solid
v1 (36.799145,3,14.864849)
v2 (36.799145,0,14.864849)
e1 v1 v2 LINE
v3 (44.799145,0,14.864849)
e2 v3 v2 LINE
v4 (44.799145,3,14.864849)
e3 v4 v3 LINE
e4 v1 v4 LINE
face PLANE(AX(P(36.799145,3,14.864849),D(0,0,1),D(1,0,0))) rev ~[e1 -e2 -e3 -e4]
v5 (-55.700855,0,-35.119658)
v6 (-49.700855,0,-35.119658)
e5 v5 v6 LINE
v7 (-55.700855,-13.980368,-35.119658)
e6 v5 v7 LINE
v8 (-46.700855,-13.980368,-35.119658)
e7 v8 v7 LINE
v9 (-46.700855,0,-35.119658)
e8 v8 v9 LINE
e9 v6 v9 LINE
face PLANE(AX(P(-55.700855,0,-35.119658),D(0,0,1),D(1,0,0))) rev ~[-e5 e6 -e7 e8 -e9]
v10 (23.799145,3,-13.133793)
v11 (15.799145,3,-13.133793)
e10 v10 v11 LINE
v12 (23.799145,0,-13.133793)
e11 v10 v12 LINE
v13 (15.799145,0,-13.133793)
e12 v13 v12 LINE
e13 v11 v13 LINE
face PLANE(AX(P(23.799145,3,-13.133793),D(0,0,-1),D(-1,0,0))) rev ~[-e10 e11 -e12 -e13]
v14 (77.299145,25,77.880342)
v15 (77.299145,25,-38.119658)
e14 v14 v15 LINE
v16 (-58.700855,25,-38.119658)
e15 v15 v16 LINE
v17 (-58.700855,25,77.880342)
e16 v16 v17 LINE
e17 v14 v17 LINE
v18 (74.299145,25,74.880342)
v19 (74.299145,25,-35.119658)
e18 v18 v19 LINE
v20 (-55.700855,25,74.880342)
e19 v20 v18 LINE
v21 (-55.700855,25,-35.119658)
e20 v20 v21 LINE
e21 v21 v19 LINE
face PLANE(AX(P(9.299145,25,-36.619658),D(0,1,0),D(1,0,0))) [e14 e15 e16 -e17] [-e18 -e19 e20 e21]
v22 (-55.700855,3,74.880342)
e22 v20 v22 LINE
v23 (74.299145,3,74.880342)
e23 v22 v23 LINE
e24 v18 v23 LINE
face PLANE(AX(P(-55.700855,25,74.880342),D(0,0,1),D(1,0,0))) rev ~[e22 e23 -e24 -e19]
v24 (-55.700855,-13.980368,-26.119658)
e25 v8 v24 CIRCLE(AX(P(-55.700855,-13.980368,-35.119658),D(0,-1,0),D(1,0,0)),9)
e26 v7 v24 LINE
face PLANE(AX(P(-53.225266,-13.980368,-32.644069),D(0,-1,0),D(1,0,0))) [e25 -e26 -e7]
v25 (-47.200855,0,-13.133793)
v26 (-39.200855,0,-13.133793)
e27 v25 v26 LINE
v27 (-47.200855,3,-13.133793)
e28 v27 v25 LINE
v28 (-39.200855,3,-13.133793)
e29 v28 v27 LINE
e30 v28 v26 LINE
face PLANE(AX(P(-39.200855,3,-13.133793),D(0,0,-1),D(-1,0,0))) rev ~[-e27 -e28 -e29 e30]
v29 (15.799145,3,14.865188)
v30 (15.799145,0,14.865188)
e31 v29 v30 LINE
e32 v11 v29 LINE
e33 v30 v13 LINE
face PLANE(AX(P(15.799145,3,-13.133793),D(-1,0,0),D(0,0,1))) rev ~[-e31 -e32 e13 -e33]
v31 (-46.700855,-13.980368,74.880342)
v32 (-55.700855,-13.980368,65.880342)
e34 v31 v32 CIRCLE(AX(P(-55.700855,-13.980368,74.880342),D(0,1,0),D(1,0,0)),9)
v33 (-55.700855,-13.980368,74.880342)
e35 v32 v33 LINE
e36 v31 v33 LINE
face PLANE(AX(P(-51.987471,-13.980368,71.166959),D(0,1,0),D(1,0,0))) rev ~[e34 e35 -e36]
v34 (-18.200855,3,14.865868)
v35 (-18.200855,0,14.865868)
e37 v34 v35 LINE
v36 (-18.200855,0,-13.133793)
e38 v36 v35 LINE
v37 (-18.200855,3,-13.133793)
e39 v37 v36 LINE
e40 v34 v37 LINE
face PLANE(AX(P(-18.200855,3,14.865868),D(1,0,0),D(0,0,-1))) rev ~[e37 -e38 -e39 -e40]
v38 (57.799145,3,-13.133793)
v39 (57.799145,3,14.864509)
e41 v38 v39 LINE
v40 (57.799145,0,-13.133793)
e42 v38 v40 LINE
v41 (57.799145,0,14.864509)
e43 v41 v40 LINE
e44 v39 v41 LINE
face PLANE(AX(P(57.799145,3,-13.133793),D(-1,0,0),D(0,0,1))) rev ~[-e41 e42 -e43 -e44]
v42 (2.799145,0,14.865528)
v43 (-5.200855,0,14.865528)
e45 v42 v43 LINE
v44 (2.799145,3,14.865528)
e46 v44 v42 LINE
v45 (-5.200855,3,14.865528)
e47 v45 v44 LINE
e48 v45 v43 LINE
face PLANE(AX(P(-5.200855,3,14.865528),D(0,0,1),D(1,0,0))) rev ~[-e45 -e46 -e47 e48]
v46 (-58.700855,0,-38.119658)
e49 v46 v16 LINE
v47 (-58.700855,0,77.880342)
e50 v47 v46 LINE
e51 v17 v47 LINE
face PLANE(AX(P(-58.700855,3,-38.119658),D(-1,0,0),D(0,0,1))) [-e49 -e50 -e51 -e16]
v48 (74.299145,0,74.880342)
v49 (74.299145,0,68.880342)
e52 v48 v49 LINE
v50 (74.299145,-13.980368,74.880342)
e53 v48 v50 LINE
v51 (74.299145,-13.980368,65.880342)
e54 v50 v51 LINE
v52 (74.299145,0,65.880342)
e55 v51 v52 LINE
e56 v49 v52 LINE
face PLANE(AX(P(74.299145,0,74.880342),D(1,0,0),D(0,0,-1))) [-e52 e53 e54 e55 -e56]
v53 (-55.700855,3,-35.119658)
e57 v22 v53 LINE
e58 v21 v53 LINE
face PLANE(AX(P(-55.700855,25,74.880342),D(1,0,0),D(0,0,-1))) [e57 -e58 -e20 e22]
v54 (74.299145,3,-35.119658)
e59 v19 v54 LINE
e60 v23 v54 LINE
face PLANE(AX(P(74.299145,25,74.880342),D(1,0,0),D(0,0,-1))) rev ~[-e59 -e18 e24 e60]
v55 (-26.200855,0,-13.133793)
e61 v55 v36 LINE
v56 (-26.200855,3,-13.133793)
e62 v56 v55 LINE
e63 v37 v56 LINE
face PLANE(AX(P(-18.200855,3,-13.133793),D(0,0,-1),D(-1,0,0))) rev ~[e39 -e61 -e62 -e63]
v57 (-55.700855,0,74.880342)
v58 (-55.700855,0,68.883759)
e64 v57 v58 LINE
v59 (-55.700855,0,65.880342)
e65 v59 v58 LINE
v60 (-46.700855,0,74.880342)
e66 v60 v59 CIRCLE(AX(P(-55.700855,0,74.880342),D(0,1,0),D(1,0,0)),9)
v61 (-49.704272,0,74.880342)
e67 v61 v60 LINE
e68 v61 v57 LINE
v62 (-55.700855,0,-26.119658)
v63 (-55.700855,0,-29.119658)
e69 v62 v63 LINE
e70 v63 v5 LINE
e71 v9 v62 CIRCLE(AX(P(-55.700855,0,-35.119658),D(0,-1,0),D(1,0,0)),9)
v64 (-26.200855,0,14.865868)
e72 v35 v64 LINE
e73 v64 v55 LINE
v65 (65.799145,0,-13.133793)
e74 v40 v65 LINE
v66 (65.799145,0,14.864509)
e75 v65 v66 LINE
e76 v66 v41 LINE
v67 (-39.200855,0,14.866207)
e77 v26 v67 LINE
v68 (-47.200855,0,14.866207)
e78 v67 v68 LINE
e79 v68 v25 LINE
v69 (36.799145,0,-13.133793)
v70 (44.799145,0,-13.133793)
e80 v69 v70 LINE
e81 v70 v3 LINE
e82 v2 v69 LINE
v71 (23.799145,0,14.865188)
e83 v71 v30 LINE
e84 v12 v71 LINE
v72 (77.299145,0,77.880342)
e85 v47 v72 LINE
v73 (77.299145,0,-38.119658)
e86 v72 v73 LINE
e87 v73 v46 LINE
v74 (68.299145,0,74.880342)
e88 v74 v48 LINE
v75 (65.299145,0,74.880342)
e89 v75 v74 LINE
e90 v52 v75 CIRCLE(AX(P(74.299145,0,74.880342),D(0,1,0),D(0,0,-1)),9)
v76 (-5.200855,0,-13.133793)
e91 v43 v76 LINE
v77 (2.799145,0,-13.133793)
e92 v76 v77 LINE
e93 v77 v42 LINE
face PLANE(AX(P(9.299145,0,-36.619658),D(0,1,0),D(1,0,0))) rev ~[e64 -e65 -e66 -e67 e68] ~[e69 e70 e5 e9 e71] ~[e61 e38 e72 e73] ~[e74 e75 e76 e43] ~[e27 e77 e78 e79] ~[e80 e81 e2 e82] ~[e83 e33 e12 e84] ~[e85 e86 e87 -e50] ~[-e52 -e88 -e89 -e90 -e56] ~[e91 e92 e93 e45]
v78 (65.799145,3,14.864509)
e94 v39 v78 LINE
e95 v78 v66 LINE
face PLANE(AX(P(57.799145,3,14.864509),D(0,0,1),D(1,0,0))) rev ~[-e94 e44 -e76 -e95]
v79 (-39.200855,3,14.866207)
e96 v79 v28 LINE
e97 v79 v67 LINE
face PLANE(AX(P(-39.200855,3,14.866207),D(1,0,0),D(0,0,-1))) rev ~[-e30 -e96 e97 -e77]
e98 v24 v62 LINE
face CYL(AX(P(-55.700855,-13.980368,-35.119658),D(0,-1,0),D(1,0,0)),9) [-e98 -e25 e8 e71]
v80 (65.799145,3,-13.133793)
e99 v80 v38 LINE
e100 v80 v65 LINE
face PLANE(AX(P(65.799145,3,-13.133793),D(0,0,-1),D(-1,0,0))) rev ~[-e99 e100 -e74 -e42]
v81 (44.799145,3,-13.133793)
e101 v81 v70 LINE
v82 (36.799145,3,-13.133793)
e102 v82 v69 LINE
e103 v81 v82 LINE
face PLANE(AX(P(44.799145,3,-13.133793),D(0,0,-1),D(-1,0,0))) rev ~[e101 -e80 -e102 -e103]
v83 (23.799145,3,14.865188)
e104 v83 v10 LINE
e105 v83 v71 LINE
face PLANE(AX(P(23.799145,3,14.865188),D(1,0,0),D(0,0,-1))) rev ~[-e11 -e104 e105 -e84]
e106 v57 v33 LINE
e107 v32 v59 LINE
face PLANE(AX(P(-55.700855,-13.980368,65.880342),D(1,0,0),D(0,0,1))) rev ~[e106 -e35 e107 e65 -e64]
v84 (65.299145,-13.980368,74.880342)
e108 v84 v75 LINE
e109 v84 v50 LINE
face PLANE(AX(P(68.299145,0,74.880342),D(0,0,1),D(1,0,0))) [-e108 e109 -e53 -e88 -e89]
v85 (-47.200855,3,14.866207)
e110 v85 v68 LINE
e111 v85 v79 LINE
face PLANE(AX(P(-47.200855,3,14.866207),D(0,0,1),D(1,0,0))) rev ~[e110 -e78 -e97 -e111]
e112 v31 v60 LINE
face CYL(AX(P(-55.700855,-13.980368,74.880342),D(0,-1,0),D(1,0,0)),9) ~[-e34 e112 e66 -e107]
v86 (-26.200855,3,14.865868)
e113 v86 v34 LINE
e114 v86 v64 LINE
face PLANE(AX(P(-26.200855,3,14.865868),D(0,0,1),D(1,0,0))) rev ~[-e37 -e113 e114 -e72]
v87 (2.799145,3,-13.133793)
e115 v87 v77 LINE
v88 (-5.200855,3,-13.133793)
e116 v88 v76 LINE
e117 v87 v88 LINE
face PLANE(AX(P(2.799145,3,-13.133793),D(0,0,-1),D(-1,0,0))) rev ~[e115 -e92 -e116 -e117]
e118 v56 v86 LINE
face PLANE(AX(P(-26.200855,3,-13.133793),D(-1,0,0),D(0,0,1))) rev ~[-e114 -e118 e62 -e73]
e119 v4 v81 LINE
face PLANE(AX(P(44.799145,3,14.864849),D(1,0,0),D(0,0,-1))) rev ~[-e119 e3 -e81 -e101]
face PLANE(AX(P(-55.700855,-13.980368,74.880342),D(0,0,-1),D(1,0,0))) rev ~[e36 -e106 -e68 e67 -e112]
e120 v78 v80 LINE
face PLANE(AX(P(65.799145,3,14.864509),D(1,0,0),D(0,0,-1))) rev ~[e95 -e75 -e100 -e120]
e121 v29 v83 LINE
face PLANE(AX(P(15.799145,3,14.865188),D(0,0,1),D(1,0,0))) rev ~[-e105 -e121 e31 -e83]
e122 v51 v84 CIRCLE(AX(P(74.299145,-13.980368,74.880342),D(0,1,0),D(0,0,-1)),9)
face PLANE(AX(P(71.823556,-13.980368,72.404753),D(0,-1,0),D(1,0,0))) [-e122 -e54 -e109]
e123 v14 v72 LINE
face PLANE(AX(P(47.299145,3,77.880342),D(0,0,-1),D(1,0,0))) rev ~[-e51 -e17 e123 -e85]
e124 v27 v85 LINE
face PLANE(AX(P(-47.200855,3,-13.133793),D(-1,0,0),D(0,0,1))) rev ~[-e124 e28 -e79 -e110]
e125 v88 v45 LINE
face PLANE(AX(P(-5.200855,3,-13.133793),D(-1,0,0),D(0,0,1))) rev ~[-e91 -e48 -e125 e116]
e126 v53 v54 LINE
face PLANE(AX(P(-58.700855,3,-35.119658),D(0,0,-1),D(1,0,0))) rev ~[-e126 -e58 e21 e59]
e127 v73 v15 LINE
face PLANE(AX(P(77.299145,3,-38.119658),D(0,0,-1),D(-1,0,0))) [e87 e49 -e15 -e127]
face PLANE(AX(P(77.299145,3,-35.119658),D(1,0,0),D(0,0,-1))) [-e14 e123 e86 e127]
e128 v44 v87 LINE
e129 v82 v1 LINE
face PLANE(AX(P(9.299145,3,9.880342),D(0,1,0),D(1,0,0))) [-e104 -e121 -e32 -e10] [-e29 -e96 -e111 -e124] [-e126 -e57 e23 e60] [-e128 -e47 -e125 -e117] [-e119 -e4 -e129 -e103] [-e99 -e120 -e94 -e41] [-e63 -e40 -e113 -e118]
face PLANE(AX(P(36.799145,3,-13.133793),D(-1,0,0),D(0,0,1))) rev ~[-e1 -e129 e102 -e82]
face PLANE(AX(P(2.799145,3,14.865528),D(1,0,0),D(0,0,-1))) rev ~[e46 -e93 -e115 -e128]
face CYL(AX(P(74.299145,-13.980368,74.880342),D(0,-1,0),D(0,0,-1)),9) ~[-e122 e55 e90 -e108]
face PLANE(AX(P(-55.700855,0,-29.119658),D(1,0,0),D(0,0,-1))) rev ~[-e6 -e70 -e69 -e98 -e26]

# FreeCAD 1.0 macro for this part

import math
import FreeCAD as App
import Part
import Sketcher
from FreeCAD import Vector
Q = App.Units.Quantity


def add_polygon(sketch, points):
    """Adds a closed chain of lines whose ends are joined by coincident constraints."""
    first, n = sketch.GeometryCount, len(points)
    for a, b in zip(points, points[1:] + points[:1]):
        sketch.addGeometry(Part.LineSegment(App.Vector(*a, 0), App.Vector(*b, 0)), False)
    for i in range(n):
        sketch.addConstraint(Sketcher.Constraint("Coincident", first + i, 2, first + (i + 1) % n, 1))

doc = App.newDocument("Part")
body = doc.addObject("PartDesign::Body", "Body")

sketch1 = body.newObject("Sketcher::SketchObject", "Sketch")
sketch1.AttachmentSupport = (doc.getObject("XZ_Plane"), [""])
sketch1.MapMode = "FlatFace"
add_polygon(sketch1, [(-58.700855, -58.119658), (-58.700855, 77.880342), (77.299145, 77.880342), (77.299145, -58.119658)])
sketch1.addConstraint(Sketcher.Constraint("Vertical", 0))
sketch1.addConstraint(Sketcher.Constraint("Horizontal", 1))
sketch1.addConstraint(Sketcher.Constraint("Vertical", 2))
sketch1.addConstraint(Sketcher.Constraint("Horizontal", 3))
sketch1.addConstraint(Sketcher.Constraint("Equal", 3, 0))
sketch1.addConstraint(Sketcher.Constraint("DistanceX", 1, 1, 1, 2, 136.0))
sketch1.addConstraint(Sketcher.Constraint("DistanceY", -1, 1, 0, 2, 77.880342))
sketch1.addConstraint(Sketcher.Constraint("DistanceX", 0, 2, -1, 1, 58.700855))
pad1 = body.newObject("PartDesign::Pad", "Pad")
pad1.Profile = sketch1
pad1.Length = 25
pad1.Reversed = True

sketch2 = body.newObject("Sketcher::SketchObject", "Sketch001")
sketch2.AttachmentSupport = (doc.getObject("XZ_Plane"), [""])
sketch2.MapMode = "FlatFace"
sketch2.AttachmentOffset = App.Placement(Vector(0, 0, -25), App.Rotation())
add_polygon(sketch2, [(-49.700855, -49.119658), (-49.700855, 68.880342), (68.299145, 68.880342), (68.299145, -49.119658)])
sketch2.addConstraint(Sketcher.Constraint("Vertical", 0))
sketch2.addConstraint(Sketcher.Constraint("Horizontal", 1))
sketch2.addConstraint(Sketcher.Constraint("Vertical", 2))
sketch2.addConstraint(Sketcher.Constraint("Horizontal", 3))
sketch2.addConstraint(Sketcher.Constraint("Equal", 3, 0))
sketch2.addConstraint(Sketcher.Constraint("DistanceX", 1, 1, 1, 2, 118.0))
sketch2.addConstraint(Sketcher.Constraint("DistanceY", -1, 1, 0, 2, 68.880342))
sketch2.addConstraint(Sketcher.Constraint("DistanceX", 0, 2, -1, 1, 49.700855))
pocket1 = body.newObject("PartDesign::Pocket", "Pocket")
pocket1.Profile = sketch2
pocket1.Length = 22
pocket1.Reversed = True

sketch3 = body.newObject("Sketcher::SketchObject", "Sketch002")
sketch3.AttachmentSupport = (doc.getObject("XZ_Plane"), [""])
sketch3.MapMode = "FlatFace"
sketch3.AttachmentOffset = App.Placement(Vector(0, 0, -25), App.Rotation())
add_polygon(sketch3, [(47.299145, 77.880342), (77.299145, 77.880342), (77.299145, 47.880342), (68.299145, 47.880342), (68.299145, 56.880342), (56.299145, 68.880342), (47.299145, 68.880342)])
sketch3.addConstraint(Sketcher.Constraint("Horizontal", 0))
sketch3.addConstraint(Sketcher.Constraint("Vertical", 1))
sketch3.addConstraint(Sketcher.Constraint("Horizontal", 2))
sketch3.addConstraint(Sketcher.Constraint("Vertical", 3))
sketch3.addConstraint(Sketcher.Constraint("Horizontal", 5))
sketch3.addConstraint(Sketcher.Constraint("Vertical", 6))
sketch3.addConstraint(Sketcher.Constraint("Equal", 2, 5))
sketch3.addConstraint(Sketcher.Constraint("Equal", 0, 1))
sketch3.addConstraint(Sketcher.Constraint("Equal", 5, 3))
sketch3.addConstraint(Sketcher.Constraint("Equal", 3, 6))
sketch3.addConstraint(Sketcher.Constraint("DistanceX", 0, 1, 0, 2, 30.0))
sketch3.addConstraint(Sketcher.Constraint("DistanceX", 2, 2, 2, 1, 9.0))
sketch3.addConstraint(Sketcher.Constraint("DistanceY", -1, 1, 0, 2, 77.880342))
sketch3.addConstraint(Sketcher.Constraint("DistanceX", -1, 1, 0, 2, 77.299145))
pocket2 = body.newObject("PartDesign::Pocket", "Pocket001")
pocket2.Profile = sketch3
pocket2.Length = 22
pocket2.Reversed = True

sketch4 = body.newObject("Sketcher::SketchObject", "Sketch003")
sketch4.AttachmentSupport = (doc.getObject("XZ_Plane"), [""])
sketch4.MapMode = "FlatFace"
sketch4.AttachmentOffset = App.Placement(Vector(0, 0, -3), App.Rotation())
add_polygon(sketch4, [(68.299145, 47.880342), (47.299145, 68.880342), (47.299145, 77.880342), (77.299145, 77.880342), (77.299145, 47.880342)])
sketch4.addConstraint(Sketcher.Constraint("Vertical", 1))
sketch4.addConstraint(Sketcher.Constraint("Horizontal", 2))
sketch4.addConstraint(Sketcher.Constraint("Vertical", 3))
sketch4.addConstraint(Sketcher.Constraint("Horizontal", 4))
sketch4.addConstraint(Sketcher.Constraint("Equal", 4, 1))
sketch4.addConstraint(Sketcher.Constraint("Equal", 2, 3))
sketch4.addConstraint(Sketcher.Constraint("DistanceX", 2, 1, 2, 2, 30.0))
sketch4.addConstraint(Sketcher.Constraint("DistanceX", 4, 2, 4, 1, 9.0))
sketch4.addConstraint(Sketcher.Constraint("DistanceY", -1, 1, 0, 2, 68.880342))
sketch4.addConstraint(Sketcher.Constraint("DistanceX", -1, 1, 0, 2, 47.299145))
pocket3 = body.newObject("PartDesign::Pocket", "Pocket002")
pocket3.Profile = sketch4
pocket3.Length = 22
pocket3.Reversed = True

sketch5 = body.newObject("Sketcher::SketchObject", "Sketch004")
sketch5.Placement = App.Placement(Vector(58.089744, 0, 58.089744), App.Rotation(Vector(0.707106781, 0, -0.707106781), Vector(0, 0.999999999, 0), Vector(0.707106781, 0, 0.707106781), "ZXY"))
add_polygon(sketch5, [(-15.26021, 3), (-15.26021, -27.003874), (14.438274, -27.003874), (14.438274, 3)])
sketch5.addConstraint(Sketcher.Constraint("Vertical", 0))
sketch5.addConstraint(Sketcher.Constraint("Horizontal", 1))
sketch5.addConstraint(Sketcher.Constraint("Vertical", 2))
sketch5.addConstraint(Sketcher.Constraint("Horizontal", 3))
sketch5.addConstraint(Sketcher.Constraint("DistanceY", -1, 1, 2, 2, 3.0))
sketch5.addConstraint(Sketcher.Constraint("DistanceX", 1, 1, 1, 2, 29.698485))
sketch5.addConstraint(Sketcher.Constraint("DistanceY", 0, 2, 0, 1, 30.003874))
sketch5.addConstraint(Sketcher.Constraint("DistanceX", 0, 2, -1, 1, 15.26021))
pad2 = body.newObject("PartDesign::Pad", "Pad001")
pad2.Profile = sketch5
pad2.Length = 25

sketch6 = body.newObject("Sketcher::SketchObject", "Sketch005")
sketch6.AttachmentSupport = (doc.getObject("XZ_Plane"), [""])
sketch6.MapMode = "FlatFace"
sketch6.AttachmentOffset = App.Placement(Vector(0, 0, -3), App.Rotation())
add_polygon(sketch6, [(47.299145, 77.880342), (77.299145, 47.880342), (68.299145, 47.880342), (47.299145, 68.880342)])
sketch6.addConstraint(Sketcher.Constraint("Horizontal", 1))
sketch6.addConstraint(Sketcher.Constraint("Vertical", 3))
sketch6.addConstraint(Sketcher.Constraint("Parallel", 0, 2))
sketch6.addConstraint(Sketcher.Constraint("Equal", 1, 3))
sketch6.addConstraint(Sketcher.Constraint("DistanceX", 1, 2, 1, 1, 9.0))
sketch6.addConstraint(Sketcher.Constraint("DistanceX", 2, 2, 1, 2, 21.0))
sketch6.addConstraint(Sketcher.Constraint("DistanceY", -1, 1, 0, 2, 47.880342))
sketch6.addConstraint(Sketcher.Constraint("DistanceX", -1, 1, 0, 2, 77.299145))
pad3 = body.newObject("PartDesign::Pad", "Pad002")
pad3.Profile = sketch6
pad3.Length = 3

sketch7 = body.newObject("Sketcher::SketchObject", "Sketch006")
sketch7.AttachmentSupport = (doc.getObject("XZ_Plane"), [""])
sketch7.MapMode = "FlatFace"
sketch7.AttachmentOffset = App.Placement(Vector(0, 0, -3), App.Rotation())
add_polygon(sketch7, [(38.299145, 68.880342), (47.299145, 77.880342), (47.299145, 68.880342)])
sketch7.addConstraint(Sketcher.Constraint("Vertical", 1))
sketch7.addConstraint(Sketcher.Constraint("Horizontal", 2))
sketch7.addConstraint(Sketcher.Constraint("Equal", 2, 1))
sketch7.addConstraint(Sketcher.Constraint("DistanceX", 2, 2, 2, 1, 9.0))
sketch7.addConstraint(Sketcher.Constraint("DistanceY", -1, 1, 0, 2, 77.880342))
sketch7.addConstraint(Sketcher.Constraint("DistanceX", -1, 1, 0, 2, 47.299145))
pocket4 = body.newObject("PartDesign::Pocket", "Pocket003")
pocket4.Profile = sketch7
pocket4.Length = 23

sketch8 = body.newObject("Sketcher::SketchObject", "Sketch007")
sketch8.AttachmentSupport = (doc.getObject("XZ_Plane"), [""])
sketch8.MapMode = "FlatFace"
sketch8.AttachmentOffset = App.Placement(Vector(0, 0, -25), App.Rotation())
add_polygon(sketch8, [(77.299145, 47.880342), (68.299145, 38.880342), (68.299145, 47.880342)])
sketch8.addConstraint(Sketcher.Constraint("Vertical", 1))
sketch8.addConstraint(Sketcher.Constraint("Horizontal", 2))
sketch8.addConstraint(Sketcher.Constraint("Equal", 2, 1))
sketch8.addConstraint(Sketcher.Constraint("DistanceX", 2, 1, 2, 2, 9.0))
sketch8.addConstraint(Sketcher.Constraint("DistanceY", -1, 1, 0, 2, 38.880342))
sketch8.addConstraint(Sketcher.Constraint("DistanceX", -1, 1, 0, 2, 68.299145))
pocket5 = body.newObject("PartDesign::Pocket", "Pocket004")
pocket5.Profile = sketch8
pocket5.Length = 22
pocket5.Reversed = True

sketch9 = body.newObject("Sketcher::SketchObject", "Sketch008")
sketch9.Placement = App.Placement(Vector(-10.790598, 0, 10.790598), App.Rotation(Vector(0.707106781, 0, 0.707106781), Vector(0, 0.999999999, 0), Vector(-0.707106781, 0, 0.707106781), "ZXY"))
add_polygon(sketch9, [(107.151303, -18.636039), (88.515264, 0), (82.151303, 0), (82.151303, -27.003874), (107.151303, -27.003874)])
add_polygon(sketch9, [(88.515264, 3), (107.151303, -15.636039), (107.151303, 3)])
sketch9.addConstraint(Sketcher.Constraint("Horizontal", 1))
sketch9.addConstraint(Sketcher.Constraint("Vertical", 2))
sketch9.addConstraint(Sketcher.Constraint("Horizontal", 3))
sketch9.addConstraint(Sketcher.Constraint("Vertical", 4))
sketch9.addConstraint(Sketcher.Constraint("Vertical", 6))
sketch9.addConstraint(Sketcher.Constraint("Horizontal", 7))
sketch9.addConstraint(Sketcher.Constraint("PointOnObject", 0, 2, -1))
sketch9.addConstraint(Sketcher.Constraint("Parallel", 0, 5))
sketch9.addConstraint(Sketcher.Constraint("Vertical", 4, 2, 5, 2))
sketch9.addConstraint(Sketcher.Constraint("Vertical", 0, 2, 7, 2))
sketch9.addConstraint(Sketcher.Constraint("Equal", 7, 6))
sketch9.addConstraint(Sketcher.Constraint("DistanceX", 3, 1, 3, 2, 25.0))
sketch9.addConstraint(Sketcher.Constraint("DistanceY", -1, 1, 6, 2, 3.0))
sketch9.addConstraint(Sketcher.Constraint("DistanceX", 1, 2, 1, 1, 6.363961))
sketch9.addConstraint(Sketcher.Constraint("DistanceY", 2, 2, 2, 1, 27.003874))
sketch9.addConstraint(Sketcher.Constraint("DistanceX", -1, 1, 0, 2, 88.515264))
pocket6 = body.newObject("PartDesign::Pocket", "Pocket005")
pocket6.Profile = sketch9
pocket6.Length = 32

sketch10 = body.newObject("Sketcher::SketchObject", "Sketch009")
sketch10.Placement = App.Placement(Vector(-10.790598, 0, 10.790598), App.Rotation(Vector(0.707106781, 0, 0.707106781), Vector(0, 0.999999999, 0), Vector(-0.707106781, 0, 0.707106781), "ZXY"))
add_polygon(sketch10, [(88.515264, 3), (88.515264, 0), (107.151303, -18.636039), (107.151303, -15.636039)])
sketch10.addConstraint(Sketcher.Constraint("Vertical", 0))
sketch10.addConstraint(Sketcher.Constraint("Vertical", 2))
sketch10.addConstraint(Sketcher.Constraint("PointOnObject", 0, 2, -1))
sketch10.addConstraint(Sketcher.Constraint("Parallel", 1, 3))
sketch10.addConstraint(Sketcher.Constraint("DistanceY", 0, 2, 0, 1, 3.0))
sketch10.addConstraint(Sketcher.Constraint("Angle", 1, Q("-45 deg")))
sketch10.addConstraint(Sketcher.Constraint("Distance", 1, 26.355339))
sketch10.addConstraint(Sketcher.Constraint("DistanceX", -1, 1, 0, 2, 88.515264))
pad4 = body.newObject("PartDesign::Pad", "Pad003")
pad4.Profile = sketch10
pad4.Length = 6.36

sketch11 = body.newObject("Sketcher::SketchObject", "Sketch010")
sketch11.Placement = App.Placement(Vector(10.209402, 0, -10.209402), App.Rotation(Vector(-0.707106781, 0, -0.707106781), Vector(0, 0.999999999, 0), Vector(0.707106781, 0, -0.707106781), "ZXY"))
add_polygon(sketch11, [(-88.515264, 0), (-88.515264, 3), (-107.151303, -15.636039), (-107.151303, -18.636039)])
sketch11.addConstraint(Sketcher.Constraint("Vertical", 0))
sketch11.addConstraint(Sketcher.Constraint("Vertical", 2))
sketch11.addConstraint(Sketcher.Constraint("PointOnObject", 3, 2, -1))
sketch11.addConstraint(Sketcher.Constraint("Parallel", 1, 3))
sketch11.addConstraint(Sketcher.Constraint("DistanceY", 0, 1, 0, 2, 3.0))
sketch11.addConstraint(Sketcher.Constraint("Angle", 1, Q("-135 deg")))
sketch11.addConstraint(Sketcher.Constraint("Distance", 1, 26.355339))
sketch11.addConstraint(Sketcher.Constraint("DistanceX", 0, 2, -1, 1, 88.515264))
pad5 = body.newObject("PartDesign::Pad", "Pad004")
pad5.Profile = sketch11
pad5.Length = 6.36

sketch12 = body.newObject("Sketcher::SketchObject", "Sketch011")
sketch12.Placement = App.Placement(Vector(32.355532, 45.757632, 32.355532), App.Rotation(Vector(0.866025404, -0.40824829, -0.288675135), Vector(0, 0.57735027, -0.816496581), Vector(0.5, 0.707106781, 0.5), "ZXY"))
add_polygon(sketch12, [(67.109442, -58.883416), (51.89318, -37.364372), (61.916524, -62.555363)])
add_polygon(sketch12, [(32.474895, -83.373739), (37.667813, -79.701792), (17.258633, -61.854695)])
sketch12.addConstraint(Sketcher.Constraint("Perpendicular", 0, 2))
sketch12.addConstraint(Sketcher.Constraint("Parallel", 2, 3))
sketch12.addConstraint(Sketcher.Constraint("Perpendicular", 3, 5))
sketch12.addConstraint(Sketcher.Constraint("Equal", 2, 3))
sketch12.addConstraint(Sketcher.Constraint("Equal", 1, 4))
sketch12.addConstraint(Sketcher.Constraint("Distance", 2, 6.36))
sketch12.addConstraint(Sketcher.Constraint("Distance", 0, 26.355339))
sketch12.addConstraint(Sketcher.Constraint("DistanceX", -1, 1, 0, 2, 51.89318))
sketch12.addConstraint(Sketcher.Constraint("DistanceY", 0, 2, -1, 1, 37.364372))
sketch12.addConstraint(Sketcher.Constraint("DistanceY", 3, 2, -1, 1, 79.701792))
sketch12.addConstraint(Sketcher.Constraint("DistanceY", 5, 2, -1, 1, 83.373739))
sketch12.addConstraint(Sketcher.Constraint("DistanceX", 3, 2, 1, 2, 24.248711))
pocket7 = body.newObject("PartDesign::Pocket", "Pocket006")
pocket7.Profile = sketch12
pocket7.Length = 6.36

sketch13 = body.newObject("Sketcher::SketchObject", "Sketch012")
sketch13.Placement = App.Placement(Vector(-15.287797, 0, 15.287797), App.Rotation(Vector(0.707106781, 0, 0.707106781), Vector(0, 0.999999999, 0), Vector(-0.707106781, 0, 0.707106781), "ZXY"))
add_polygon(sketch13, [(107.151303, -18.636039), (107.151303, -15.636039), (105.651303, -17.136039)])
sketch13.addConstraint(Sketcher.Constraint("Vertical", 0))
sketch13.addConstraint(Sketcher.Constraint("Perpendicular", 1, 2))
sketch13.addConstraint(Sketcher.Constraint("Equal", 1, 2))
sketch13.addConstraint(Sketcher.Constraint("DistanceY", 0, 1, 0, 2, 3.0))
sketch13.addConstraint(Sketcher.Constraint("DistanceY", 0, 2, -1, 1, 15.636039))
sketch13.addConstraint(Sketcher.Constraint("DistanceX", -1, 1, 0, 2, 107.151303))
pocket8 = body.newObject("PartDesign::Pocket", "Pocket007")
pocket8.Profile = sketch13
pocket8.Length = 56.36

sketch14 = body.newObject("Sketcher::SketchObject", "Sketch013")
sketch14.AttachmentSupport = (doc.getObject("XZ_Plane"), [""])
sketch14.MapMode = "FlatFace"
add_polygon(sketch14, [(47.299145, 77.880342), (-58.700855, 77.880342), (-58.700855, -58.119658), (77.299145, -58.119658), (77.299145, 47.880342)])
sketch14.addConstraint(Sketcher.Constraint("Horizontal", 0))
sketch14.addConstraint(Sketcher.Constraint("Vertical", 1))
sketch14.addConstraint(Sketcher.Constraint("Horizontal", 2))
sketch14.addConstraint(Sketcher.Constraint("Vertical", 3))
sketch14.addConstraint(Sketcher.Constraint("Equal", 2, 1))
sketch14.addConstraint(Sketcher.Constraint("Equal", 0, 3))
sketch14.addConstraint(Sketcher.Constraint("DistanceX", 0, 2, 0, 1, 106.0))
sketch14.addConstraint(Sketcher.Constraint("DistanceX", 2, 1, 2, 2, 136.0))
sketch14.addConstraint(Sketcher.Constraint("DistanceY", -1, 1, 0, 2, 77.880342))
sketch14.addConstraint(Sketcher.Constraint("DistanceX", 0, 2, -1, 1, 58.700855))
pad6 = body.newObject("PartDesign::Pad", "Pad005")
pad6.Profile = sketch14
pad6.Length = 3
pad6.Reversed = True
body2 = doc.addObject("PartDesign::Body", "Body001")

sketch15 = body2.newObject("Sketcher::SketchObject", "Sketch014")
sketch15.AttachmentSupport = (doc.getObject("XZ_Plane001"), [""])
sketch15.MapMode = "FlatFace"
sketch15.AttachmentOffset = App.Placement(Vector(0, 0, 17), App.Rotation())
add_polygon(sketch15, [(64.976815, 86.558011), (70.906234, 91.928485), (91.906234, 70.928485), (85.976815, 65.558011)])
sketch15.addConstraint(Sketcher.Constraint("Parallel", 0, 2))
sketch15.addConstraint(Sketcher.Constraint("Parallel", 1, 3))
sketch15.addConstraint(Sketcher.Constraint("Angle", 1, Q("-45 deg")))
sketch15.addConstraint(Sketcher.Constraint("Distance", 0, 8.0))
sketch15.addConstraint(Sketcher.Constraint("DistanceX", 0, 2, 1, 2, 21.0))
sketch15.addConstraint(Sketcher.Constraint("DistanceY", -1, 1, 2, 2, 65.558011))
sketch15.addConstraint(Sketcher.Constraint("DistanceX", 2, 2, 1, 2, 5.929419))
sketch15.addConstraint(Sketcher.Constraint("DistanceX", -1, 1, 0, 2, 70.906234))
pad7 = body2.newObject("PartDesign::Pad", "Pad006")
pad7.Profile = sketch15
pad7.Length = 2
pad7.Reversed = True
body.AllowCompound = True
doc.recompute()

boolean = body.newObject("PartDesign::Boolean", "Boolean")
boolean.Type = "Fuse"
boolean.addObjects([body2])

sketch16 = body.newObject("Sketcher::SketchObject", "Sketch015")
sketch16.Placement = App.Placement(Vector(75.767413, 0, 75.767413), App.Rotation(Vector(-0.707106781, 0, 0.707106781), Vector(0, 0.999999999, 0), Vector(-0.707106781, 0, -0.707106781), "ZXY"))
add_polygon(sketch16, [(-14.438274, -15), (-14.438274, -17), (15.26021, -17), (15.26021, -15)])
sketch16.addConstraint(Sketcher.Constraint("Vertical", 0))
sketch16.addConstraint(Sketcher.Constraint("Horizontal", 1))
sketch16.addConstraint(Sketcher.Constraint("Vertical", 2))
sketch16.addConstraint(Sketcher.Constraint("Horizontal", 3))
sketch16.addConstraint(Sketcher.Constraint("DistanceY", 0, 2, 0, 1, 2.0))
sketch16.addConstraint(Sketcher.Constraint("DistanceY", 0, 2, -1, 1, 17.0))
sketch16.addConstraint(Sketcher.Constraint("DistanceX", 1, 1, 1, 2, 29.698485))
sketch16.addConstraint(Sketcher.Constraint("DistanceX", -1, 1, 1, 2, 15.26021))
pad8 = body.newObject("PartDesign::Pad", "Pad007")
pad8.Profile = sketch16
pad8.Length = 1.5

sketch17 = body.newObject("Sketcher::SketchObject", "Sketch016")
sketch17.Placement = App.Placement(Vector(-13.785544, 0, 15.22031), App.Rotation(Vector(0.741177432, 0, 0.671309179), Vector(0, 1, 0), Vector(-0.671309179, 0, 0.741177432), "ZXY"))
add_polygon(sketch17, [(103.905142, -17), (103.905142, -17.734082), (114.266536, -17.734082), (114.266536, -17)])
sketch17.addConstraint(Sketcher.Constraint("Vertical", 0))
sketch17.addConstraint(Sketcher.Constraint("Horizontal", 1))
sketch17.addConstraint(Sketcher.Constraint("Vertical", 2))
sketch17.addConstraint(Sketcher.Constraint("Horizontal", 3))
sketch17.addConstraint(Sketcher.Constraint("DistanceY", 2, 2, -1, 1, 17.0))
sketch17.addConstraint(Sketcher.Constraint("DistanceY", 0, 2, 0, 1, 0.734082))
sketch17.addConstraint(Sketcher.Constraint("DistanceX", 1, 1, 1, 2, 10.361394))
sketch17.addConstraint(Sketcher.Constraint("DistanceX", -1, 1, 0, 2, 103.905142))
pocket9 = body.newObject("PartDesign::Pocket", "Pocket008")
pocket9.Profile = sketch17
pocket9.Length = 31.5

sketch18 = body.newObject("Sketcher::SketchObject", "Sketch017")
sketch18.Placement = App.Placement(Vector(32.355532, 45.757632, 32.355532), App.Rotation(Vector(0.866025404, -0.40824829, -0.288675135), Vector(0, 0.57735027, -0.816496581), Vector(0.5, 0.707106781, 0.5), "ZXY"))
add_polygon(sketch18, [(8.148099, -53.895706), (17.255398, -61.856982), (51.89318, -37.364372), (47.339945, -25.921032)])
sketch18.addConstraint(Sketcher.Constraint("DistanceX", -1, 1, 0, 2, 17.255398))
sketch18.addConstraint(Sketcher.Constraint("DistanceX", -1, 1, 3, 2, 8.148099))
sketch18.addConstraint(Sketcher.Constraint("Distance", 0, 12.09648))
sketch18.addConstraint(Sketcher.Constraint("Distance", 3, 48.151669))
sketch18.addConstraint(Sketcher.Constraint("DistanceX", -1, 1, 1, 2, 51.89318))
sketch18.addConstraint(Sketcher.Constraint("DistanceY", 1, 2, -1, 1, 37.364372))
sketch18.addConstraint(Sketcher.Constraint("DistanceY", 2, 2, -1, 1, 25.921032))
sketch18.addConstraint(Sketcher.Constraint("DistanceY", 0, 2, 1, 2, 24.492611))
pad9 = body.newObject("PartDesign::Pad", "Pad008")
pad9.Profile = sketch18
pad9.Length = 4
pad9.Reversed = True

sketch19 = body.newObject("Sketcher::SketchObject", "Sketch018")
sketch19.Placement = App.Placement(Vector(14.709402, 0, -14.709402), App.Rotation(Vector(0.707106781, 0, 0.707106781), Vector(0, 0.999999999, 0), Vector(-0.707106781, 0, 0.707106781), "ZXY"))
add_polygon(sketch19, [(80.058657, 11.456607), (75.787342, 11.456607), (75.787342, 3), (82.85841, 3)])
sketch19.addConstraint(Sketcher.Constraint("Horizontal", 0))
sketch19.addConstraint(Sketcher.Constraint("Vertical", 1))
sketch19.addConstraint(Sketcher.Constraint("Horizontal", 2))
sketch19.addConstraint(Sketcher.Constraint("DistanceY", -1, 1, 1, 2, 3.0))
sketch19.addConstraint(Sketcher.Constraint("Distance", 3, 8.90802))
sketch19.addConstraint(Sketcher.Constraint("DistanceX", 0, 2, 0, 1, 4.271315))
sketch19.addConstraint(Sketcher.Constraint("DistanceX", 2, 1, 2, 2, 7.071068))
sketch19.addConstraint(Sketcher.Constraint("DistanceX", -1, 1, 2, 2, 82.85841))
pad10 = body.newObject("PartDesign::Pad", "Pad009")
pad10.Profile = sketch19
pad10.Length = 44

sketch20 = body.newObject("Sketcher::SketchObject", "Sketch019")
sketch20.AttachmentSupport = (doc.getObject("XZ_Plane"), [""])
sketch20.MapMode = "FlatFace"
sketch20.AttachmentOffset = App.Placement(Vector(0, 0, -25), App.Rotation())
add_polygon(sketch20, [(68.299145, 38.880342), (38.299145, 68.880342), (47.299145, 77.880342), (70.906234, 91.928485), (91.906234, 70.928485), (77.299145, 47.880342)])
sketch20.addConstraint(Sketcher.Constraint("Perpendicular", 0, 1))
sketch20.addConstraint(Sketcher.Constraint("Perpendicular", 1, 3))
sketch20.addConstraint(Sketcher.Constraint("Perpendicular", 3, 5))
sketch20.addConstraint(Sketcher.Constraint("Equal", 1, 5))
sketch20.addConstraint(Sketcher.Constraint("Angle", 0, Q("135 deg")))
sketch20.addConstraint(Sketcher.Constraint("DistanceX", 0, 2, 1, 2, 9.0))
sketch20.addConstraint(Sketcher.Constraint("DistanceX", 2, 2, 3, 2, 21.0))
sketch20.addConstraint(Sketcher.Constraint("DistanceX", 1, 2, 4, 2, 30.0))
sketch20.addConstraint(Sketcher.Constraint("DistanceY", -1, 1, 0, 2, 68.880342))
sketch20.addConstraint(Sketcher.Constraint("DistanceX", 1, 2, 2, 2, 23.607089))
sketch20.addConstraint(Sketcher.Constraint("Distance", 2, 27.470802))
sketch20.addConstraint(Sketcher.Constraint("DistanceX", -1, 1, 0, 2, 38.299145))
pocket10 = body.newObject("PartDesign::Pocket", "Pocket009")
pocket10.Profile = sketch20
pocket10.Length = 50
pocket10.Reversed = True

sketch21 = body.newObject("Sketcher::SketchObject", "Sketch020")
sketch21.AttachmentSupport = (doc.getObject("XZ_Plane"), [""])
sketch21.MapMode = "FlatFace"
sketch21.AttachmentOffset = App.Placement(Vector(0, 0, -3), App.Rotation())
add_polygon(sketch21, [(77.299145, 47.880342), (68.299145, 38.880342), (38.299145, 68.880342), (47.299145, 77.880342), (77.299145, 77.880342)])
sketch21.addConstraint(Sketcher.Constraint("Horizontal", 3))
sketch21.addConstraint(Sketcher.Constraint("Vertical", 4))
sketch21.addConstraint(Sketcher.Constraint("Perpendicular", 0, 1))
sketch21.addConstraint(Sketcher.Constraint("Perpendicular", 1, 2))
sketch21.addConstraint(Sketcher.Constraint("Equal", 3, 4))
sketch21.addConstraint(Sketcher.Constraint("Equal", 0, 2))
sketch21.addConstraint(Sketcher.Constraint("DistanceX", 3, 1, 3, 2, 30.0))
sketch21.addConstraint(Sketcher.Constraint("DistanceX", 1, 2, 2, 2, 9.0))
sketch21.addConstraint(Sketcher.Constraint("DistanceY", -1, 1, 0, 2, 38.880342))
sketch21.addConstraint(Sketcher.Constraint("DistanceX", -1, 1, 0, 2, 68.299145))
pad11 = body.newObject("PartDesign::Pad", "Pad010")
pad11.Profile = sketch21
pad11.Length = 3

sketch22 = body.newObject("Sketcher::SketchObject", "Sketch021")
sketch22.AttachmentSupport = (doc.getObject("XZ_Plane"), [""])
sketch22.MapMode = "FlatFace"
sketch22.AttachmentOffset = App.Placement(Vector(0, 0, -3), App.Rotation())
add_polygon(sketch22, [(77.299145, 77.880342), (77.299145, 47.880342), (68.299145, 38.880342), (68.299145, 68.880342), (38.299145, 68.880342), (47.299145, 77.880342)])
sketch22.addConstraint(Sketcher.Constraint("Vertical", 0))
sketch22.addConstraint(Sketcher.Constraint("Vertical", 2))
sketch22.addConstraint(Sketcher.Constraint("Horizontal", 3))
sketch22.addConstraint(Sketcher.Constraint("Horizontal", 5))
sketch22.addConstraint(Sketcher.Constraint("Parallel", 1, 4))
sketch22.addConstraint(Sketcher.Constraint("Equal", 3, 5))
sketch22.addConstraint(Sketcher.Constraint("Equal", 5, 0))
sketch22.addConstraint(Sketcher.Constraint("DistanceX", 3, 2, 3, 1, 30.0))
sketch22.addConstraint(Sketcher.Constraint("Angle", 1, Q("-135 deg")))
sketch22.addConstraint(Sketcher.Constraint("DistanceX", 1, 2, 0, 2, 9.0))
sketch22.addConstraint(Sketcher.Constraint("DistanceY", -1, 1, 0, 2, 47.880342))
sketch22.addConstraint(Sketcher.Constraint("DistanceX", -1, 1, 0, 2, 77.299145))
pad12 = body.newObject("PartDesign::Pad", "Pad011")
pad12.Profile = sketch22
pad12.Length = 22
pad12.Reversed = True

sketch23 = body.newObject("Sketcher::SketchObject", "Sketch022")
sketch23.AttachmentSupport = (doc.getObject("XZ_Plane"), [""])
sketch23.MapMode = "FlatFace"
sketch23.AttachmentOffset = App.Placement(Vector(0, 0, -25), App.Rotation())
add_polygon(sketch23, [(-55.700855, -55.119658), (-55.700855, 74.880342), (74.299145, 74.880342), (74.299145, -55.119658)])
sketch23.addConstraint(Sketcher.Constraint("Vertical", 0))
sketch23.addConstraint(Sketcher.Constraint("Horizontal", 1))
sketch23.addConstraint(Sketcher.Constraint("Vertical", 2))
sketch23.addConstraint(Sketcher.Constraint("Horizontal", 3))
sketch23.addConstraint(Sketcher.Constraint("Equal", 3, 0))
sketch23.addConstraint(Sketcher.Constraint("DistanceX", 1, 1, 1, 2, 130.0))
sketch23.addConstraint(Sketcher.Constraint("DistanceY", -1, 1, 0, 2, 74.880342))
sketch23.addConstraint(Sketcher.Constraint("DistanceX", 0, 2, -1, 1, 55.700855))
pocket11 = body.newObject("PartDesign::Pocket", "Pocket010")
pocket11.Profile = sketch23
pocket11.Length = 22
pocket11.Reversed = True

sketch24 = body.newObject("Sketcher::SketchObject", "Sketch023")
sketch24.AttachmentSupport = (doc.getObject("XZ_Plane"), [""])
sketch24.MapMode = "FlatFace"
sketch24.AttachmentOffset = App.Placement(Vector(0, 0, -3), App.Rotation())
add_polygon(sketch24, [(-39.200855, 14.866207), (-39.200855, -13.133793), (-47.200855, -13.133793), (-47.200855, 14.866207)])
add_polygon(sketch24, [(-18.200855, 14.865868), (-18.200855, -13.133793), (-26.200855, -13.133793), (-26.200855, 14.865868)])
add_polygon(sketch24, [(2.799145, 14.865528), (2.799145, -13.133793), (-5.200855, -13.133793), (-5.200855, 14.865528)])
add_polygon(sketch24, [(23.799145, 14.865188), (23.799145, -13.133793), (15.799145, -13.133793), (15.799145, 14.865188)])
add_polygon(sketch24, [(44.799145, 14.864849), (44.799145, -13.133793), (36.799145, -13.133793), (36.799145, 14.864849)])
add_polygon(sketch24, [(65.799145, 14.864509), (65.799145, -13.133793), (57.799145, -13.133793), (57.799145, 14.864509)])
sketch24.addConstraint(Sketcher.Constraint("Vertical", 0))
sketch24.addConstraint(Sketcher.Constraint("Horizontal", 1))
sketch24.addConstraint(Sketcher.Constraint("Vertical", 2))
sketch24.addConstraint(Sketcher.Constraint("Horizontal", 3))
sketch24.addConstraint(Sketcher.Constraint("Vertical", 4))
sketch24.addConstraint(Sketcher.Constraint("Horizontal", 5))
sketch24.addConstraint(Sketcher.Constraint("Vertical", 6))
sketch24.addConstraint(Sketcher.Constraint("Horizontal", 7))
sketch24.addConstraint(Sketcher.Constraint("Vertical", 8))
sketch24.addConstraint(Sketcher.Constraint("Horizontal", 9))
sketch24.addConstraint(Sketcher.Constraint("Vertical", 10))
sketch24.addConstraint(Sketcher.Constraint("Horizontal", 11))
sketch24.addConstraint(Sketcher.Constraint("Vertical", 12))
sketch24.addConstraint(Sketcher.Constraint("Horizontal", 13))
sketch24.addConstraint(Sketcher.Constraint("Vertical", 14))
sketch24.addConstraint(Sketcher.Constraint("Horizontal", 15))
sketch24.addConstraint(Sketcher.Constraint("Vertical", 16))
sketch24.addConstraint(Sketcher.Constraint("Horizontal", 17))
sketch24.addConstraint(Sketcher.Constraint("Vertical", 18))
sketch24.addConstraint(Sketcher.Constraint("Horizontal", 19))
sketch24.addConstraint(Sketcher.Constraint("Vertical", 20))
sketch24.addConstraint(Sketcher.Constraint("Horizontal", 21))
sketch24.addConstraint(Sketcher.Constraint("Vertical", 22))
sketch24.addConstraint(Sketcher.Constraint("Horizontal", 23))
sketch24.addConstraint(Sketcher.Constraint("Horizontal", 1, 2, 4, 2))
sketch24.addConstraint(Sketcher.Constraint("Horizontal", 5, 2, 8, 2))
sketch24.addConstraint(Sketcher.Constraint("Horizontal", 9, 2, 12, 2))
sketch24.addConstraint(Sketcher.Constraint("Horizontal", 13, 2, 16, 2))
sketch24.addConstraint(Sketcher.Constraint("Horizontal", 17, 2, 20, 2))
sketch24.addConstraint(Sketcher.Constraint("Equal", 3, 5))
sketch24.addConstraint(Sketcher.Constraint("Equal", 7, 9))
sketch24.addConstraint(Sketcher.Constraint("Equal", 11, 13))
sketch24.addConstraint(Sketcher.Constraint("Equal", 15, 17))
sketch24.addConstraint(Sketcher.Constraint("Equal", 19, 21))
sketch24.addConstraint(Sketcher.Constraint("DistanceX", 1, 2, 1, 1, 8.0))
sketch24.addConstraint(Sketcher.Constraint("DistanceY", 0, 2, 0, 1, 28.0))
sketch24.addConstraint(Sketcher.Constraint("DistanceX", 0, 2, 4, 2, 21.0))
sketch24.addConstraint(Sketcher.Constraint("DistanceX", 4, 2, 8, 2, 21.0))
sketch24.addConstraint(Sketcher.Constraint("DistanceX", 8, 2, 12, 2, 21.0))
sketch24.addConstraint(Sketcher.Constraint("DistanceX", 12, 2, 16, 2, 21.0))
sketch24.addConstraint(Sketcher.Constraint("DistanceX", 16, 2, 20, 2, 21.0))
sketch24.addConstraint(Sketcher.Constraint("DistanceY", 20, 2, 20, 1, 27.998302))
sketch24.addConstraint(Sketcher.Constraint("DistanceY", 4, 2, 4, 1, 27.99966))
sketch24.addConstraint(Sketcher.Constraint("DistanceY", 8, 2, 8, 1, 27.999321))
sketch24.addConstraint(Sketcher.Constraint("DistanceY", 12, 2, 12, 1, 27.998981))
sketch24.addConstraint(Sketcher.Constraint("DistanceY", 16, 2, 16, 1, 27.998642))
sketch24.addConstraint(Sketcher.Constraint("DistanceY", -1, 1, 10, 2, 14.865528))
sketch24.addConstraint(Sketcher.Constraint("DistanceX", 0, 2, -1, 1, 39.200855))
pocket12 = body.newObject("PartDesign::Pocket", "Pocket011")
pocket12.Profile = sketch24
pocket12.Length = 12
pocket12.Reversed = True

sketch25 = body.newObject("Sketcher::SketchObject", "Sketch024")
sketch25.AttachmentSupport = (doc.getObject("XZ_Plane"), [""])
sketch25.MapMode = "FlatFace"
sketch25.AttachmentOffset = App.Placement(Vector(0, 0, -25), App.Rotation())
add_polygon(sketch25, [(77.299145, -35.119658), (77.299145, -58.119658), (-58.700855, -58.119658), (-58.700855, -35.119658)])
sketch25.addConstraint(Sketcher.Constraint("Vertical", 0))
sketch25.addConstraint(Sketcher.Constraint("Horizontal", 1))
sketch25.addConstraint(Sketcher.Constraint("Vertical", 2))
sketch25.addConstraint(Sketcher.Constraint("Horizontal", 3))
sketch25.addConstraint(Sketcher.Constraint("DistanceX", 1, 2, 1, 1, 136.0))
sketch25.addConstraint(Sketcher.Constraint("DistanceY", 0, 2, 0, 1, 23.0))
sketch25.addConstraint(Sketcher.Constraint("DistanceY", 0, 2, -1, 1, 58.119658))
sketch25.addConstraint(Sketcher.Constraint("DistanceX", -1, 1, 0, 2, 77.299145))
pocket13 = body.newObject("PartDesign::Pocket", "Pocket012")
pocket13.Profile = sketch25
pocket13.Length = 32
pocket13.Reversed = True

sketch26 = body.newObject("Sketcher::SketchObject", "Sketch025")
sketch26.AttachmentSupport = (doc.getObject("XZ_Plane"), [""])
sketch26.MapMode = "FlatFace"
sketch26.AttachmentOffset = App.Placement(Vector(0, 0, -3), App.Rotation())
add_polygon(sketch26, [(-58.700855, -35.119658), (77.299145, -35.119658), (77.299145, -38.119658), (-58.700855, -38.119658)])
sketch26.addConstraint(Sketcher.Constraint("Horizontal", 0))
sketch26.addConstraint(Sketcher.Constraint("Vertical", 1))
sketch26.addConstraint(Sketcher.Constraint("Horizontal", 2))
sketch26.addConstraint(Sketcher.Constraint("Vertical", 3))
sketch26.addConstraint(Sketcher.Constraint("DistanceX", 0, 1, 0, 2, 136.0))
sketch26.addConstraint(Sketcher.Constraint("DistanceY", 1, 2, 1, 1, 3.0))
sketch26.addConstraint(Sketcher.Constraint("DistanceY", 0, 2, -1, 1, 35.119658))
sketch26.addConstraint(Sketcher.Constraint("DistanceX", -1, 1, 0, 2, 77.299145))
pad13 = body.newObject("PartDesign::Pad", "Pad012")
pad13.Profile = sketch26
pad13.Type = "TwoLengths"
pad13.Length = 22
pad13.Length2 = 3
pad13.Reversed = True

sketch27 = body.newObject("Sketcher::SketchObject", "Sketch026")
sketch27.AttachmentSupport = (doc.getObject("XZ_Plane"), [""])
sketch27.MapMode = "FlatFace"
sketch27.addGeometry(Part.LineSegment(Vector(-49.704272, 74.880342, 0), Vector(-55.700855, 74.880342, 0)), False)
sketch27.addGeometry(Part.LineSegment(Vector(-55.700855, 74.880342, 0), Vector(-55.700855, 68.883759, 0)), False)
sketch27.addGeometry(Part.ArcOfCircle(Part.Circle(Vector(-55.700855, 74.880342, 0), Vector(0, 0, 1), 5.996583), math.radians(-90), math.radians(0)), False)
sketch27.addGeometry(Part.LineSegment(Vector(-55.700855, -29.119658, 0), Vector(-55.700855, -35.119658, 0)), False)
sketch27.addGeometry(Part.LineSegment(Vector(-55.700855, -35.119658, 0), Vector(-49.700855, -35.119658, 0)), False)
sketch27.addGeometry(Part.ArcOfCircle(Part.Circle(Vector(-55.700855, -35.119658, 0), Vector(0, 0, 1), 6), math.radians(0), math.radians(90)), False)
sketch27.addConstraint(Sketcher.Constraint("Coincident", 0, 2, 1, 1))
sketch27.addConstraint(Sketcher.Constraint("Coincident", 1, 2, 2, 1))
sketch27.addConstraint(Sketcher.Constraint("Coincident", 2, 2, 0, 1))
sketch27.addConstraint(Sketcher.Constraint("Coincident", 3, 2, 4, 1))
sketch27.addConstraint(Sketcher.Constraint("Coincident", 4, 2, 5, 1))
sketch27.addConstraint(Sketcher.Constraint("Coincident", 5, 2, 3, 1))
sketch27.addConstraint(Sketcher.Constraint("Horizontal", 0))
sketch27.addConstraint(Sketcher.Constraint("Vertical", 1))
sketch27.addConstraint(Sketcher.Constraint("Vertical", 3))
sketch27.addConstraint(Sketcher.Constraint("Horizontal", 4))
sketch27.addConstraint(Sketcher.Constraint("Coincident", 0, 2, 2, 3))
sketch27.addConstraint(Sketcher.Constraint("Coincident", 3, 2, 5, 3))
sketch27.addConstraint(Sketcher.Constraint("Vertical", 2, 3, 5, 3))
sketch27.addConstraint(Sketcher.Constraint("Radius", 5, 6.0))
sketch27.addConstraint(Sketcher.Constraint("DistanceY", 5, 3, 2, 3, 110.0))
sketch27.addConstraint(Sketcher.Constraint("Radius", 2, 5.996583))
sketch27.addConstraint(Sketcher.Constraint("DistanceY", -1, 1, 2, 3, 74.880342))
sketch27.addConstraint(Sketcher.Constraint("DistanceX", 2, 2, -1, 1, 49.704272))
pad14 = body.newObject("PartDesign::Pad", "Pad013")
pad14.Profile = sketch27
pad14.Length = 16.980368

sketch28 = body.newObject("Sketcher::SketchObject", "Sketch027")
sketch28.AttachmentSupport = (doc.getObject("XZ_Plane"), [""])
sketch28.MapMode = "FlatFace"
sketch28.AttachmentOffset = App.Placement(Vector(0, 0, 16.980368), App.Rotation())
sketch28.addGeometry(Part.LineSegment(Vector(-55.700855, 74.880342, 0), Vector(-55.700855, 68.883759, 0)), False)
sketch28.addGeometry(Part.ArcOfCircle(Part.Circle(Vector(-55.700855, 74.880342, 0), Vector(0, 0, 1), 5.996583), math.radians(-90), math.radians(0)), False)
sketch28.addGeometry(Part.LineSegment(Vector(-49.704272, 74.880342, 0), Vector(-55.700855, 74.880342, 0)), False)
sketch28.addGeometry(Part.LineSegment(Vector(-55.700855, -35.119658, 0), Vector(-49.700855, -35.119658, 0)), False)
sketch28.addGeometry(Part.ArcOfCircle(Part.Circle(Vector(-55.700855, -35.119658, 0), Vector(0, 0, 1), 6), math.radians(0), math.radians(90)), False)
sketch28.addGeometry(Part.LineSegment(Vector(-55.700855, -29.119658, 0), Vector(-55.700855, -35.119658, 0)), False)
sketch28.addConstraint(Sketcher.Constraint("Coincident", 0, 2, 1, 1))
sketch28.addConstraint(Sketcher.Constraint("Coincident", 1, 2, 2, 1))
sketch28.addConstraint(Sketcher.Constraint("Coincident", 2, 2, 0, 1))
sketch28.addConstraint(Sketcher.Constraint("Coincident", 3, 2, 4, 1))
sketch28.addConstraint(Sketcher.Constraint("Coincident", 4, 2, 5, 1))
sketch28.addConstraint(Sketcher.Constraint("Coincident", 5, 2, 3, 1))
sketch28.addConstraint(Sketcher.Constraint("Vertical", 0))
sketch28.addConstraint(Sketcher.Constraint("Horizontal", 2))
sketch28.addConstraint(Sketcher.Constraint("Horizontal", 3))
sketch28.addConstraint(Sketcher.Constraint("Vertical", 5))
sketch28.addConstraint(Sketcher.Constraint("Coincident", 2, 2, 1, 3))
sketch28.addConstraint(Sketcher.Constraint("Coincident", 5, 2, 4, 3))
sketch28.addConstraint(Sketcher.Constraint("Vertical", 1, 3, 4, 3))
sketch28.addConstraint(Sketcher.Constraint("Radius", 4, 6.0))
sketch28.addConstraint(Sketcher.Constraint("DistanceY", 4, 3, 1, 3, 110.0))
sketch28.addConstraint(Sketcher.Constraint("Radius", 1, 5.996583))
sketch28.addConstraint(Sketcher.Constraint("DistanceY", -1, 1, 1, 3, 74.880342))
sketch28.addConstraint(Sketcher.Constraint("DistanceX", 1, 2, -1, 1, 49.704272))
pocket14 = body.newObject("PartDesign::Pocket", "Pocket013")
pocket14.Profile = sketch28
pocket14.Length = 2

sketch29 = body.newObject("Sketcher::SketchObject", "Sketch028")
sketch29.AttachmentSupport = (doc.getObject("XZ_Plane"), [""])
sketch29.MapMode = "FlatFace"
sketch29.addGeometry(Part.LineSegment(Vector(74.299145, 74.880342, 0), Vector(68.299145, 74.880342, 0)), False)
sketch29.addGeometry(Part.ArcOfCircle(Part.Circle(Vector(74.299145, 74.880342, 0), Vector(0, 0, 1), 6), math.radians(180), math.radians(270)), False)
sketch29.addGeometry(Part.LineSegment(Vector(74.299145, 68.880342, 0), Vector(74.299145, 74.880342, 0)), False)
sketch29.addConstraint(Sketcher.Constraint("Coincident", 0, 2, 1, 1))
sketch29.addConstraint(Sketcher.Constraint("Coincident", 1, 2, 2, 1))
sketch29.addConstraint(Sketcher.Constraint("Coincident", 2, 2, 0, 1))
sketch29.addConstraint(Sketcher.Constraint("Horizontal", 0))
sketch29.addConstraint(Sketcher.Constraint("Vertical", 2))
sketch29.addConstraint(Sketcher.Constraint("Coincident", 2, 2, 1, 3))
sketch29.addConstraint(Sketcher.Constraint("Radius", 1, 6.0))
sketch29.addConstraint(Sketcher.Constraint("DistanceY", -1, 1, 1, 3, 74.880342))
sketch29.addConstraint(Sketcher.Constraint("DistanceX", -1, 1, 1, 3, 74.299145))
pad15 = body.newObject("PartDesign::Pad", "Pad014")
pad15.Profile = sketch29
pad15.Length = 14.980368

sketch30 = body.newObject("Sketcher::SketchObject", "Sketch029")
sketch30.AttachmentSupport = (doc.getObject("XZ_Plane"), [""])
sketch30.MapMode = "FlatFace"
sketch30.AttachmentOffset = App.Placement(Vector(0, 0, 14.980368), App.Rotation())
sketch30.addGeometry(Part.LineSegment(Vector(74.299145, 68.880342, 0), Vector(74.299145, 74.880342, 0)), False)
sketch30.addGeometry(Part.LineSegment(Vector(74.299145, 74.880342, 0), Vector(68.299145, 74.880342, 0)), False)
sketch30.addGeometry(Part.ArcOfCircle(Part.Circle(Vector(74.299145, 74.880342, 0), Vector(0, 0, 1), 6), math.radians(180), math.radians(270)), False)
sketch30.addGeometry(Part.LineSegment(Vector(-49.704272, 74.880342, 0), Vector(-55.700855, 74.880342, 0)), False)
sketch30.addGeometry(Part.LineSegment(Vector(-55.700855, 74.880342, 0), Vector(-55.700855, 68.883759, 0)), False)
sketch30.addGeometry(Part.ArcOfCircle(Part.Circle(Vector(-55.700855, 74.880342, 0), Vector(0, 0, 1), 5.996583), math.radians(-90), math.radians(0)), False)
sketch30.addGeometry(Part.LineSegment(Vector(-55.700855, -29.119658, 0), Vector(-55.700855, -35.119658, 0)), False)
sketch30.addGeometry(Part.LineSegment(Vector(-55.700855, -35.119658, 0), Vector(-49.700855, -35.119658, 0)), False)
sketch30.addGeometry(Part.ArcOfCircle(Part.Circle(Vector(-55.700855, -35.119658, 0), Vector(0, 0, 1), 6), math.radians(0), math.radians(90)), False)
sketch30.addConstraint(Sketcher.Constraint("Coincident", 0, 2, 1, 1))
sketch30.addConstraint(Sketcher.Constraint("Coincident", 1, 2, 2, 1))
sketch30.addConstraint(Sketcher.Constraint("Coincident", 2, 2, 0, 1))
sketch30.addConstraint(Sketcher.Constraint("Coincident", 3, 2, 4, 1))
sketch30.addConstraint(Sketcher.Constraint("Coincident", 4, 2, 5, 1))
sketch30.addConstraint(Sketcher.Constraint("Coincident", 5, 2, 3, 1))
sketch30.addConstraint(Sketcher.Constraint("Coincident", 6, 2, 7, 1))
sketch30.addConstraint(Sketcher.Constraint("Coincident", 7, 2, 8, 1))
sketch30.addConstraint(Sketcher.Constraint("Coincident", 8, 2, 6, 1))
sketch30.addConstraint(Sketcher.Constraint("Vertical", 0))
sketch30.addConstraint(Sketcher.Constraint("Horizontal", 1))
sketch30.addConstraint(Sketcher.Constraint("Horizontal", 3))
sketch30.addConstraint(Sketcher.Constraint("Vertical", 4))
sketch30.addConstraint(Sketcher.Constraint("Vertical", 6))
sketch30.addConstraint(Sketcher.Constraint("Horizontal", 7))
sketch30.addConstraint(Sketcher.Constraint("Coincident", 0, 2, 2, 3))
sketch30.addConstraint(Sketcher.Constraint("Coincident", 3, 2, 5, 3))
sketch30.addConstraint(Sketcher.Constraint("Coincident", 6, 2, 8, 3))
sketch30.addConstraint(Sketcher.Constraint("Equal", 2, 8))
sketch30.addConstraint(Sketcher.Constraint("Horizontal", 2, 3, 5, 3))
sketch30.addConstraint(Sketcher.Constraint("Vertical", 5, 3, 8, 3))
sketch30.addConstraint(Sketcher.Constraint("Radius", 2, 6.0))
sketch30.addConstraint(Sketcher.Constraint("DistanceX", 5, 3, 2, 3, 130.0))
sketch30.addConstraint(Sketcher.Constraint("DistanceY", 8, 3, 5, 3, 110.0))
sketch30.addConstraint(Sketcher.Constraint("Radius", 5, 5.996583))
sketch30.addConstraint(Sketcher.Constraint("DistanceY", -1, 1, 2, 3, 74.880342))
sketch30.addConstraint(Sketcher.Constraint("DistanceX", 5, 2, -1, 1, 49.704272))
pocket15 = body.newObject("PartDesign::Pocket", "Pocket014")
pocket15.Profile = sketch30
pocket15.Length = 1

sketch31 = body.newObject("Sketcher::SketchObject", "Sketch030")
sketch31.AttachmentSupport = (doc.getObject("XZ_Plane"), [""])
sketch31.MapMode = "FlatFace"
sketch31.AttachmentOffset = App.Placement(Vector(0, 0, 13.980368), App.Rotation())
sketch31.addGeometry(Part.LineSegment(Vector(-55.700855, 74.880342, 0), Vector(-55.700855, 65.880342, 0)), False)
sketch31.addGeometry(Part.ArcOfCircle(Part.Circle(Vector(-55.700855, 74.880342, 0), Vector(0, 0, 1), 9), math.radians(-90), math.radians(0)), False)
sketch31.addGeometry(Part.LineSegment(Vector(-46.700855, 74.880342, 0), Vector(-55.700855, 74.880342, 0)), False)
sketch31.addGeometry(Part.LineSegment(Vector(-55.700855, -26.119658, 0), Vector(-55.700855, -35.119658, 0)), False)
sketch31.addGeometry(Part.LineSegment(Vector(-55.700855, -35.119658, 0), Vector(-46.700855, -35.119658, 0)), False)
sketch31.addGeometry(Part.ArcOfCircle(Part.Circle(Vector(-55.700855, -35.119658, 0), Vector(0, 0, 1), 9), math.radians(0), math.radians(90)), False)
sketch31.addGeometry(Part.LineSegment(Vector(74.299145, 74.880342, 0), Vector(65.299145, 74.880342, 0)), False)
sketch31.addGeometry(Part.ArcOfCircle(Part.Circle(Vector(74.299145, 74.880342, 0), Vector(0, 0, 1), 9), math.radians(-180), math.radians(-90)), False)
sketch31.addGeometry(Part.LineSegment(Vector(74.299145, 65.880342, 0), Vector(74.299145, 74.880342, 0)), False)
sketch31.addConstraint(Sketcher.Constraint("Coincident", 0, 2, 1, 1))
sketch31.addConstraint(Sketcher.Constraint("Coincident", 1, 2, 2, 1))
sketch31.addConstraint(Sketcher.Constraint("Coincident", 2, 2, 0, 1))
sketch31.addConstraint(Sketcher.Constraint("Coincident", 3, 2, 4, 1))
sketch31.addConstraint(Sketcher.Constraint("Coincident", 4, 2, 5, 1))
sketch31.addConstraint(Sketcher.Constraint("Coincident", 5, 2, 3, 1))
sketch31.addConstraint(Sketcher.Constraint("Coincident", 6, 2, 7, 1))
sketch31.addConstraint(Sketcher.Constraint("Coincident", 7, 2, 8, 1))
sketch31.addConstraint(Sketcher.Constraint("Coincident", 8, 2, 6, 1))
sketch31.addConstraint(Sketcher.Constraint("Vertical", 0))
sketch31.addConstraint(Sketcher.Constraint("Horizontal", 2))
sketch31.addConstraint(Sketcher.Constraint("Vertical", 3))
sketch31.addConstraint(Sketcher.Constraint("Horizontal", 4))
sketch31.addConstraint(Sketcher.Constraint("Horizontal", 6))
sketch31.addConstraint(Sketcher.Constraint("Vertical", 8))
sketch31.addConstraint(Sketcher.Constraint("Coincident", 2, 2, 1, 3))
sketch31.addConstraint(Sketcher.Constraint("Coincident", 3, 2, 5, 3))
sketch31.addConstraint(Sketcher.Constraint("Coincident", 8, 2, 7, 3))
sketch31.addConstraint(Sketcher.Constraint("Equal", 1, 5))
sketch31.addConstraint(Sketcher.Constraint("Equal", 5, 7))
sketch31.addConstraint(Sketcher.Constraint("Horizontal", 1, 3, 7, 3))
sketch31.addConstraint(Sketcher.Constraint("Vertical", 1, 3, 5, 3))
sketch31.addConstraint(Sketcher.Constraint("Radius", 1, 9.0))
sketch31.addConstraint(Sketcher.Constraint("DistanceY", 5, 3, 1, 3, 110.0))
sketch31.addConstraint(Sketcher.Constraint("DistanceX", 1, 3, 7, 3, 130.0))
sketch31.addConstraint(Sketcher.Constraint("DistanceY", -1, 1, 1, 3, 74.880342))
sketch31.addConstraint(Sketcher.Constraint("DistanceX", 1, 3, -1, 1, 55.700855))
pad16 = body.newObject("PartDesign::Pad", "Pad015")
pad16.Profile = sketch31
pad16.Length = 13.980368
pad16.Reversed = True

doc.recompute()
